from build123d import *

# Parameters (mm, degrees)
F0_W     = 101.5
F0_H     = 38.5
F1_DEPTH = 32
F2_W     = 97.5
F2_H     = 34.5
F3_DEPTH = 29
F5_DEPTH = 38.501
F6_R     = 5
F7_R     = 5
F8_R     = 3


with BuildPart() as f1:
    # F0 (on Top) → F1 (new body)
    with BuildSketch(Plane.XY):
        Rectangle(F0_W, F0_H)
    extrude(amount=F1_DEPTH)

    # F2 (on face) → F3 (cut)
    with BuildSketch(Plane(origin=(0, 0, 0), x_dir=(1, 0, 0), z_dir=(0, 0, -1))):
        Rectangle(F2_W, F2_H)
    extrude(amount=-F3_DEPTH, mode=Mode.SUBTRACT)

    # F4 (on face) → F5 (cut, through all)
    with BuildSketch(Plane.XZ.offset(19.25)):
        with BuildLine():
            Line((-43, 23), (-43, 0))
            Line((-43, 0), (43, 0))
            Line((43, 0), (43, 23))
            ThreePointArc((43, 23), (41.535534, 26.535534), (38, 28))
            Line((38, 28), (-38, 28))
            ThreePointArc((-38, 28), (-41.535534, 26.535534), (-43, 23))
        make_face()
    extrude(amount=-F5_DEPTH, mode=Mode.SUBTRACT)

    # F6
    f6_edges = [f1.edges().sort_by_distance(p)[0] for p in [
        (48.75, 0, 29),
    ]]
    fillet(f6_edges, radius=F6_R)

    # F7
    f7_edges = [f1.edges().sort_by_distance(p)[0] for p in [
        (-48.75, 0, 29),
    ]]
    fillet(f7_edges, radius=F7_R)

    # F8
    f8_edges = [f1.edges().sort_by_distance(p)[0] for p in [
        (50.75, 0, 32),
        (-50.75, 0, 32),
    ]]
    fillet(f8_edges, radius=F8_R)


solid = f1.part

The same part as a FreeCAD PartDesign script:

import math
import FreeCAD as App
import Part
import Sketcher
from FreeCAD import Vector


def edges_at(feature, points):
    """Names of the edges that pass closest to the given points."""
    edges = feature.Shape.Edges
    near = lambda p: min(range(len(edges)), key=lambda i: edges[i].distToShape(Part.Vertex(*p))[0])
    return sorted({f"Edge{near(p) + 1}" for p in points})

doc = App.newDocument("Part")
params = doc.addObject("Spreadsheet::Sheet", "Params")
for row, (alias, value) in enumerate([
    ("sketch1_width", "101.5 mm"),
    ("sketch1_height", "38.5 mm"),
    ("pad1_length", "32 mm"),
    ("sketch2_width", "97.5 mm"),
    ("sketch2_height", "34.5 mm"),
    ("pocket1_length", "29 mm"),
    ("sketch3_radius", "5 mm"),
    ("sketch3_width", "86 mm"),
    ("sketch3_height", "23 mm"),
    ("fillet_radius", "5 mm"),
    ("fillet2_radius", "5 mm"),
    ("fillet3_radius", "3 mm"),
], start=1):
    params.set(f"A{row}", alias)
    params.set(f"B{row}", "=" + value)
    params.setAlias(f"B{row}", alias)

body = doc.addObject("PartDesign::Body", "Body")

# Sketch on XY plane
sketch1 = body.newObject("Sketcher::SketchObject", "Sketch")
sketch1.AttachmentSupport = (doc.getObject("XY_Plane"), [""])
sketch1.MapMode = "FlatFace"
sketch1.addGeometry(Part.LineSegment(Vector(-50.75, 19.25, 0), Vector(-50.75, -19.25, 0)), False)
sketch1.addGeometry(Part.LineSegment(Vector(-50.75, -19.25, 0), Vector(50.75, -19.25, 0)), False)
sketch1.addGeometry(Part.LineSegment(Vector(50.75, -19.25, 0), Vector(50.75, 19.25, 0)), False)
sketch1.addGeometry(Part.LineSegment(Vector(50.75, 19.25, 0), Vector(-50.75, 19.25, 0)), False)
sketch1.addConstraint(Sketcher.Constraint("Coincident", 0, 2, 1, 1))
sketch1.addConstraint(Sketcher.Constraint("Coincident", 1, 2, 2, 1))
sketch1.addConstraint(Sketcher.Constraint("Coincident", 2, 2, 3, 1))
sketch1.addConstraint(Sketcher.Constraint("Coincident", 3, 2, 0, 1))
sketch1.addConstraint(Sketcher.Constraint("Vertical", 0))
sketch1.addConstraint(Sketcher.Constraint("Horizontal", 1))
sketch1.addConstraint(Sketcher.Constraint("Vertical", 2))
sketch1.addConstraint(Sketcher.Constraint("Horizontal", 3))
sketch1.addConstraint(Sketcher.Constraint("Symmetric", 0, 2, 2, 2, -1, 1))
sketch1.addConstraint(Sketcher.Constraint("DistanceX", 1, 1, 1, 2, 101.5))
sketch1.addConstraint(Sketcher.Constraint("DistanceY", 0, 2, 0, 1, 38.5))
sketch1.setExpression("Constraints[9]", "Params.sketch1_width")
sketch1.setExpression("Constraints[10]", "Params.sketch1_height")
pad1 = body.newObject("PartDesign::Pad", "Pad")
pad1.Profile = sketch1
pad1.setExpression("Length", "Params.pad1_length")

# Sketch on XY plane
sketch2 = body.newObject("Sketcher::SketchObject", "Sketch001")
sketch2.AttachmentSupport = (doc.getObject("XY_Plane"), [""])
sketch2.MapMode = "FlatFace"
sketch2.addGeometry(Part.LineSegment(Vector(-48.75, -17.25, 0), Vector(-48.75, 17.25, 0)), False)
sketch2.addGeometry(Part.LineSegment(Vector(-48.75, 17.25, 0), Vector(48.75, 17.25, 0)), False)
sketch2.addGeometry(Part.LineSegment(Vector(48.75, 17.25, 0), Vector(48.75, -17.25, 0)), False)
sketch2.addGeometry(Part.LineSegment(Vector(48.75, -17.25, 0), Vector(-48.75, -17.25, 0)), False)
sketch2.addConstraint(Sketcher.Constraint("Coincident", 0, 2, 1, 1))
sketch2.addConstraint(Sketcher.Constraint("Coincident", 1, 2, 2, 1))
sketch2.addConstraint(Sketcher.Constraint("Coincident", 2, 2, 3, 1))
sketch2.addConstraint(Sketcher.Constraint("Coincident", 3, 2, 0, 1))
sketch2.addConstraint(Sketcher.Constraint("Vertical", 0))
sketch2.addConstraint(Sketcher.Constraint("Horizontal", 1))
sketch2.addConstraint(Sketcher.Constraint("Vertical", 2))
sketch2.addConstraint(Sketcher.Constraint("Horizontal", 3))
sketch2.addConstraint(Sketcher.Constraint("Symmetric", 0, 2, 2, 2, -1, 1))
sketch2.addConstraint(Sketcher.Constraint("DistanceX", 1, 1, 1, 2, 97.5))
sketch2.addConstraint(Sketcher.Constraint("DistanceY", 0, 1, 0, 2, 34.5))
sketch2.setExpression("Constraints[9]", "Params.sketch2_width")
sketch2.setExpression("Constraints[10]", "Params.sketch2_height")
pocket1 = body.newObject("PartDesign::Pocket", "Pocket")
pocket1.Profile = sketch2
pocket1.setExpression("Length", "Params.pocket1_length")
pocket1.Reversed = True

# Sketch on XZ plane
sketch3 = body.newObject("Sketcher::SketchObject", "Sketch002")
sketch3.AttachmentSupport = (doc.getObject("XZ_Plane"), [""])
sketch3.MapMode = "FlatFace"
sketch3.AttachmentOffset = App.Placement(Vector(0, 0, 19.25), App.Rotation())
sketch3.addGeometry(Part.LineSegment(Vector(-43, 23, 0), Vector(-43, 0, 0)), False)
sketch3.addGeometry(Part.LineSegment(Vector(-43, 0, 0), Vector(43, 0, 0)), False)
sketch3.addGeometry(Part.LineSegment(Vector(43, 0, 0), Vector(43, 23, 0)), False)
sketch3.addGeometry(Part.ArcOfCircle(Part.Circle(Vector(38, 23, 0), Vector(0, 0, 1), 5), math.radians(-0.000004), math.radians(90.000004)), False)
sketch3.addGeometry(Part.LineSegment(Vector(38, 28, 0), Vector(-38, 28, 0)), False)
sketch3.addGeometry(Part.ArcOfCircle(Part.Circle(Vector(-38, 23, 0), Vector(0, 0, 1), 5), math.radians(89.999996), math.radians(180.000004)), False)
sketch3.addConstraint(Sketcher.Constraint("Coincident", 0, 2, 1, 1))
sketch3.addConstraint(Sketcher.Constraint("Coincident", 1, 2, 2, 1))
sketch3.addConstraint(Sketcher.Constraint("Tangent", 2, 2, 3, 1))
sketch3.addConstraint(Sketcher.Constraint("Tangent", 3, 2, 4, 1))
sketch3.addConstraint(Sketcher.Constraint("Tangent", 4, 2, 5, 1))
sketch3.addConstraint(Sketcher.Constraint("Tangent", 5, 2, 0, 1))
sketch3.addConstraint(Sketcher.Constraint("Vertical", 0))
sketch3.addConstraint(Sketcher.Constraint("Horizontal", 1))
sketch3.addConstraint(Sketcher.Constraint("Vertical", 2))
sketch3.addConstraint(Sketcher.Constraint("Horizontal", 4))
sketch3.addConstraint(Sketcher.Constraint("Equal", 3, 5))
sketch3.addConstraint(Sketcher.Constraint("Symmetric", 0, 2, 1, 2, -1, 1))
sketch3.addConstraint(Sketcher.Constraint("Radius", 3, 5.0))
sketch3.addConstraint(Sketcher.Constraint("DistanceX", 1, 1, 1, 2, 86.0))
sketch3.addConstraint(Sketcher.Constraint("DistanceY", 0, 2, 0, 1, 23.0))
sketch3.setExpression("Constraints[12]", "Params.sketch3_radius")
sketch3.setExpression("Constraints[13]", "Params.sketch3_width")
sketch3.setExpression("Constraints[14]", "Params.sketch3_height")
pocket2 = body.newObject("PartDesign::Pocket", "Pocket001")
pocket2.Profile = sketch3
pocket2.Type = "ThroughAll"
doc.recompute()

fillet = body.newObject("PartDesign::Fillet", "Fillet")
fillet.Base = (pocket2, edges_at(pocket2, [(48.75, 0, 29)]))
fillet.setExpression("Radius", "Params.fillet_radius")
doc.recompute()

fillet2 = body.newObject("PartDesign::Fillet", "Fillet001")
fillet2.Base = (fillet, edges_at(fillet, [(-48.75, 0, 29)]))
fillet2.setExpression("Radius", "Params.fillet2_radius")
doc.recompute()

fillet3 = body.newObject("PartDesign::Fillet", "Fillet002")
fillet3.Base = (fillet2, edges_at(fillet2, [(50.75, 0, 32), (-50.75, 0, 32)]))
fillet3.setExpression("Radius", "Params.fillet3_radius")

doc.recompute()
